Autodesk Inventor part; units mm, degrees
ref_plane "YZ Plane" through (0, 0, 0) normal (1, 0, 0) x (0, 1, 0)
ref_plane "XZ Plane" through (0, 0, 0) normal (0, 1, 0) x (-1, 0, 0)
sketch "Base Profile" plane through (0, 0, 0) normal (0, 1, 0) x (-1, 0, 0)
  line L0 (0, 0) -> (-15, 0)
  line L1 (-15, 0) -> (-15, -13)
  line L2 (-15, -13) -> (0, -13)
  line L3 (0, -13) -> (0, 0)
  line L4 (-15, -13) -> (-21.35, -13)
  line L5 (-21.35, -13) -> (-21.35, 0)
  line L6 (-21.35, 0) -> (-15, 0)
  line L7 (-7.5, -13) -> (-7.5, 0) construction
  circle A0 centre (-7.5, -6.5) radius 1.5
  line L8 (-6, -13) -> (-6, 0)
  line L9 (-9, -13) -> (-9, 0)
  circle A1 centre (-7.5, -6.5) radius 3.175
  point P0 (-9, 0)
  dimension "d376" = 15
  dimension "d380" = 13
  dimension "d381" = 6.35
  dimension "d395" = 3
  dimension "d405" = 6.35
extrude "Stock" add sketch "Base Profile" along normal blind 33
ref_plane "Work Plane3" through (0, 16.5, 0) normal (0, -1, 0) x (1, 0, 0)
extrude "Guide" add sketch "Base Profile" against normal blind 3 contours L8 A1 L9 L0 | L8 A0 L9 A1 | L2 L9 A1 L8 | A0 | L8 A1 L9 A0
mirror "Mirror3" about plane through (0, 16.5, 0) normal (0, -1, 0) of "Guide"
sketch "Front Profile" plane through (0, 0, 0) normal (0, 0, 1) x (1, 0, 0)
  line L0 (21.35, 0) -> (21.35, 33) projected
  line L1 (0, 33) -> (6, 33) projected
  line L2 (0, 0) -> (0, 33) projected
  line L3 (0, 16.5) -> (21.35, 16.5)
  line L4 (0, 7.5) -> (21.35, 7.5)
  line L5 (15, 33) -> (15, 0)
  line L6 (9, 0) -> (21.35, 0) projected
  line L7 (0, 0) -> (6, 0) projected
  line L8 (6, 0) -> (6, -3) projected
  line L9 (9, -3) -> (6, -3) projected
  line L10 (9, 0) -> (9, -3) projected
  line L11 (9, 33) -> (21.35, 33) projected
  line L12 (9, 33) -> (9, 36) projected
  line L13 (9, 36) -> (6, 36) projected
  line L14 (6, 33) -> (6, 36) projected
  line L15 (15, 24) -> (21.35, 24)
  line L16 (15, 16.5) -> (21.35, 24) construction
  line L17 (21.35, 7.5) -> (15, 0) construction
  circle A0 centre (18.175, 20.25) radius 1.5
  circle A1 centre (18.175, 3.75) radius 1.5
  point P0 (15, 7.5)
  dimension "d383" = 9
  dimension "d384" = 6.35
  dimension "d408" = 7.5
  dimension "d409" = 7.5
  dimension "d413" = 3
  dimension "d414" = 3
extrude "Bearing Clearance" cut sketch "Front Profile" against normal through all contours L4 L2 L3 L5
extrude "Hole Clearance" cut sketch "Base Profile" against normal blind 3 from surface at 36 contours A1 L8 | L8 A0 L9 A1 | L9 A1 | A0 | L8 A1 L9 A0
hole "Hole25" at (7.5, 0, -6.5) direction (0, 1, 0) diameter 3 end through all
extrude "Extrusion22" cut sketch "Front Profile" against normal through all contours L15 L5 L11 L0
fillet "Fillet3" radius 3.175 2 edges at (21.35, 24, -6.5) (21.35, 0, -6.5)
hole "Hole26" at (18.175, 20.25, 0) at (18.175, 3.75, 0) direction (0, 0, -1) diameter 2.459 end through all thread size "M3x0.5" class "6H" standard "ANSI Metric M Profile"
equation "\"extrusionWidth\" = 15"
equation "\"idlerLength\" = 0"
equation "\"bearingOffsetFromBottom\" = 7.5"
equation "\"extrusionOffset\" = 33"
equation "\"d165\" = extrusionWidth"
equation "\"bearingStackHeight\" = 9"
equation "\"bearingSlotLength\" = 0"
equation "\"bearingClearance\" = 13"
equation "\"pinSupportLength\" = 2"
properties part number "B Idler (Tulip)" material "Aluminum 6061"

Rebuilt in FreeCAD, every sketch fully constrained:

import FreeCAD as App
import Part
import Sketcher

V = App.Vector


def edges_at(feature, points):
    """Names of the edges that pass closest to the given points."""
    edges = feature.Shape.Edges
    near = lambda p: min(range(len(edges)), key=lambda i: edges[i].distToShape(Part.Vertex(*p))[0])
    return sorted({f"Edge{near(p) + 1}" for p in points})

doc = App.newDocument("Part")
params = doc.addObject("Spreadsheet::Sheet", "Params")
for row, (alias, value) in enumerate([
    ("sketch1_height", "13 mm"),
    ("sketch1_width", "21.35 mm"),
    ("pad1_length", "33 mm"),
    ("sketch2_width", "3 mm"),
    ("sketch2_height", "13 mm"),
    ("pad2_length", "3 mm"),
    ("sketch3_height", "9 mm"),
    ("sketch3_width", "15 mm"),
    ("sketch4_diameter", "6.35 mm"),
    ("pocket2_length", "3 mm"),
    ("sketch5_diameter", "3 mm"),
    ("hole_diameter", "3 mm"),
    ("sketch6_height", "9 mm"),
    ("sketch6_width", "6.35 mm"),
    ("fillet_radius", "3.175 mm"),
    ("hole2_diameter", "2.459 mm"),
], start=1):
    params.set(f"A{row}", alias)
    params.set(f"B{row}", "=" + value)
    params.setAlias(f"B{row}", alias)

body = doc.addObject("PartDesign::Body", "Body")

# Sketch on XZ plane
sketch1 = body.newObject("Sketcher::SketchObject", "Sketch")
sketch1.AttachmentSupport = (doc.getObject("XZ_Plane"), [""])
sketch1.MapMode = "FlatFace"
sketch1.addGeometry([
    Part.LineSegment(V(0, -13, 0), V(0, 0, 0)),
    Part.LineSegment(V(0, 0, 0), V(21, 0, 0)),
    Part.LineSegment(V(21, 0, 0), V(21, -13, 0)),
    Part.LineSegment(V(21, -13, 0), V(0, -13, 0)),
], False)
sketch1.addConstraint([
    Sketcher.Constraint("Coincident", 0, 2, 1, 1),
    Sketcher.Constraint("Coincident", 1, 2, 2, 1),
    Sketcher.Constraint("Coincident", 2, 2, 3, 1),
    Sketcher.Constraint("Coincident", 3, 2, 0, 1),
    Sketcher.Constraint("Vertical", 0),
    Sketcher.Constraint("Horizontal", 1),
    Sketcher.Constraint("Vertical", 2),
    Sketcher.Constraint("Horizontal", 3),
    Sketcher.Constraint("Coincident", 0, 2, -1, 1),
    Sketcher.Constraint("DistanceY", 0, 1, 0, 2, 13.0),
    Sketcher.Constraint("DistanceX", 1, 1, 1, 2, 21.35),
])
sketch1.setExpression("Constraints[9]", "Params.sketch1_height")
sketch1.setExpression("Constraints[10]", "Params.sketch1_width")
pad1 = body.newObject("PartDesign::Pad", "Pad")
pad1.Profile = sketch1
pad1.setExpression("Length", "Params.pad1_length")
pad1.Reversed = True

# Sketch on XZ plane
sketch2 = body.newObject("Sketcher::SketchObject", "Sketch001")
sketch2.AttachmentSupport = (doc.getObject("XZ_Plane"), [""])
sketch2.MapMode = "FlatFace"
sketch2.addGeometry([
    Part.LineSegment(V(6, 0, 0), V(9, 0, 0)),
    Part.LineSegment(V(9, 0, 0), V(9, -13, 0)),
    Part.LineSegment(V(9, -13, 0), V(6, -13, 0)),
    Part.LineSegment(V(6, -13, 0), V(6, 0, 0)),
], False)
sketch2.addConstraint([
    Sketcher.Constraint("Coincident", 0, 2, 1, 1),
    Sketcher.Constraint("Coincident", 1, 2, 2, 1),
    Sketcher.Constraint("Coincident", 2, 2, 3, 1),
    Sketcher.Constraint("Coincident", 3, 2, 0, 1),
    Sketcher.Constraint("Horizontal", 0),
    Sketcher.Constraint("Vertical", 1),
    Sketcher.Constraint("Horizontal", 2),
    Sketcher.Constraint("Vertical", 3),
    Sketcher.Constraint("PointOnObject", 0, 2, -1),
    Sketcher.Constraint("DistanceX", 0, 1, 0, 2, 3.0),
    Sketcher.Constraint("DistanceY", 1, 2, 1, 1, 13.0),
    Sketcher.Constraint("DistanceX", -1, 1, 0, 2, 9.0),
])
sketch2.setExpression("Constraints[9]", "Params.sketch2_width")
sketch2.setExpression("Constraints[10]", "Params.sketch2_height")
pad2 = body.newObject("PartDesign::Pad", "Pad001")
pad2.Profile = sketch2
pad2.setExpression("Length", "Params.pad2_length")
doc.recompute()

datumplane = body.newObject("PartDesign::Plane", "DatumPlane")
datumplane.AttachmentSupport = (doc.getObject("XZ_Plane"), [""])
datumplane.MapMode = "FlatFace"
datumplane.AttachmentOffset = App.Placement(V(0, 0, -16.5), App.Rotation())
mirrored = body.newObject("PartDesign::Mirrored", "Mirrored")
mirrored.Originals = [pad2]
mirrored.MirrorPlane = (datumplane, [""])
body.Tip = mirrored

# Sketch on XY plane
sketch3 = body.newObject("Sketcher::SketchObject", "Sketch002")
sketch3.AttachmentSupport = (doc.getObject("XY_Plane"), [""])
sketch3.MapMode = "FlatFace"
sketch3.addGeometry([
    Part.LineSegment(V(0, 8, 0), V(15, 8, 0)),
    Part.LineSegment(V(15, 8, 0), V(15, 16, 0)),
    Part.LineSegment(V(15, 16, 0), V(0, 16, 0)),
    Part.LineSegment(V(0, 16, 0), V(0, 8, 0)),
], False)
sketch3.addConstraint([
    Sketcher.Constraint("Coincident", 0, 2, 1, 1),
    Sketcher.Constraint("Coincident", 1, 2, 2, 1),
    Sketcher.Constraint("Coincident", 2, 2, 3, 1),
    Sketcher.Constraint("Coincident", 3, 2, 0, 1),
    Sketcher.Constraint("Horizontal", 0),
    Sketcher.Constraint("Vertical", 1),
    Sketcher.Constraint("Horizontal", 2),
    Sketcher.Constraint("Vertical", 3),
    Sketcher.Constraint("PointOnObject", 2, 2, -2),
    Sketcher.Constraint("DistanceY", 1, 1, 1, 2, 9.0),
    Sketcher.Constraint("DistanceY", -1, 1, 0, 2, 7.5),
    Sketcher.Constraint("DistanceX", 0, 1, 0, 2, 15.0),
])
sketch3.setExpression("Constraints[9]", "Params.sketch3_height")
sketch3.setExpression("Constraints[11]", "Params.sketch3_width")
pocket1 = body.newObject("PartDesign::Pocket", "Pocket")
pocket1.Profile = sketch3
pocket1.Type = "ThroughAll"

# Sketch on XZ plane
sketch4 = body.newObject("Sketcher::SketchObject", "Sketch003")
sketch4.AttachmentSupport = (doc.getObject("XZ_Plane"), [""])
sketch4.MapMode = "FlatFace"
sketch4.AttachmentOffset = App.Placement(V(0, 0, -36), App.Rotation())
sketch4.addGeometry(Part.Circle(V(7.5, -6.5, 0), V(0, 0, 1), 3.2), False)
sketch4.addConstraint([
    Sketcher.Constraint("Diameter", 0, 6.35),
    Sketcher.Constraint("DistanceX", -1, 1, 0, 3, 7.5),
    Sketcher.Constraint("DistanceY", 0, 3, -1, 1, 6.5),
])
sketch4.setExpression("Constraints[0]", "Params.sketch4_diameter")
pocket2 = body.newObject("PartDesign::Pocket", "Pocket001")
pocket2.Profile = sketch4
pocket2.setExpression("Length", "Params.pocket2_length")
pocket2.Reversed = True

# Sketch on XZ plane
sketch5 = body.newObject("Sketcher::SketchObject", "Sketch004")
sketch5.AttachmentSupport = (doc.getObject("XZ_Plane"), [""])
sketch5.MapMode = "FlatFace"
sketch5.addGeometry(Part.Circle(V(7.5, -6.5, 0), V(0, 0, 1), 1.5), False)
sketch5.addConstraint([
    Sketcher.Constraint("Diameter", 0, 3.0),
    Sketcher.Constraint("DistanceX", -1, 1, 0, 3, 7.5),
    Sketcher.Constraint("DistanceY", 0, 3, -1, 1, 6.5),
])
sketch5.setExpression("Constraints[0]", "Params.sketch5_diameter")
doc.recompute()
hole = body.newObject("PartDesign::Hole", "Hole")
hole.Profile = sketch5
hole.ThreadType = "None"
hole.setExpression("Diameter", "Params.hole_diameter")
hole.DepthType = "ThroughAll"

# Sketch on XY plane
sketch6 = body.newObject("Sketcher::SketchObject", "Sketch005")
sketch6.AttachmentSupport = (doc.getObject("XY_Plane"), [""])
sketch6.MapMode = "FlatFace"
sketch6.addGeometry([
    Part.LineSegment(V(15, 24, 0), V(21, 24, 0)),
    Part.LineSegment(V(21, 24, 0), V(21, 33, 0)),
    Part.LineSegment(V(21, 33, 0), V(15, 33, 0)),
    Part.LineSegment(V(15, 33, 0), V(15, 24, 0)),
], False)
sketch6.addConstraint([
    Sketcher.Constraint("Coincident", 0, 2, 1, 1),
    Sketcher.Constraint("Coincident", 1, 2, 2, 1),
    Sketcher.Constraint("Coincident", 2, 2, 3, 1),
    Sketcher.Constraint("Coincident", 3, 2, 0, 1),
    Sketcher.Constraint("Horizontal", 0),
    Sketcher.Constraint("Vertical", 1),
    Sketcher.Constraint("Horizontal", 2),
    Sketcher.Constraint("Vertical", 3),
    Sketcher.Constraint("DistanceY", 1, 1, 1, 2, 9.0),
    Sketcher.Constraint("DistanceX", 0, 1, 0, 2, 6.35),
    Sketcher.Constraint("DistanceY", -1, 1, 0, 2, 24.0),
    Sketcher.Constraint("DistanceX", -1, 1, 2, 2, 15.0),
])
sketch6.setExpression("Constraints[8]", "Params.sketch6_height")
sketch6.setExpression("Constraints[9]", "Params.sketch6_width")
pocket3 = body.newObject("PartDesign::Pocket", "Pocket002")
pocket3.Profile = sketch6
pocket3.Type = "ThroughAll"
doc.recompute()

fillet = body.newObject("PartDesign::Fillet", "Fillet")
fillet.Base = (pocket3, edges_at(pocket3, [(21.35, 24, -6.5), (21.35, 0, -6.5)]))
fillet.setExpression("Radius", "Params.fillet_radius")

# Sketch on XY plane
sketch7 = body.newObject("Sketcher::SketchObject", "Sketch006")
sketch7.AttachmentSupport = (doc.getObject("XY_Plane"), [""])
sketch7.MapMode = "FlatFace"
sketch7.addGeometry([
    Part.Circle(V(18.2, 20.2, 0), V(0, 0, 1), 1.2),
    Part.Circle(V(18.2, 3.8, 0), V(0, 0, 1), 1.2),
], False)
sketch7.addConstraint([
    Sketcher.Constraint("Equal", 0, 1),
    Sketcher.Constraint("Vertical", 0, 3, 1, 3),
    Sketcher.Constraint("Diameter", 0, 2.459),
    Sketcher.Constraint("DistanceY", 1, 3, 0, 3, 16.5),
    Sketcher.Constraint("DistanceY", -1, 1, 0, 3, 20.25),
    Sketcher.Constraint("DistanceX", -1, 1, 0, 3, 18.175),
])
doc.recompute()
hole2 = body.newObject("PartDesign::Hole", "Hole001")
hole2.Profile = sketch7
hole2.ThreadType = "None"
hole2.setExpression("Diameter", "Params.hole2_diameter")
hole2.DepthType = "ThroughAll"

doc.recompute()
